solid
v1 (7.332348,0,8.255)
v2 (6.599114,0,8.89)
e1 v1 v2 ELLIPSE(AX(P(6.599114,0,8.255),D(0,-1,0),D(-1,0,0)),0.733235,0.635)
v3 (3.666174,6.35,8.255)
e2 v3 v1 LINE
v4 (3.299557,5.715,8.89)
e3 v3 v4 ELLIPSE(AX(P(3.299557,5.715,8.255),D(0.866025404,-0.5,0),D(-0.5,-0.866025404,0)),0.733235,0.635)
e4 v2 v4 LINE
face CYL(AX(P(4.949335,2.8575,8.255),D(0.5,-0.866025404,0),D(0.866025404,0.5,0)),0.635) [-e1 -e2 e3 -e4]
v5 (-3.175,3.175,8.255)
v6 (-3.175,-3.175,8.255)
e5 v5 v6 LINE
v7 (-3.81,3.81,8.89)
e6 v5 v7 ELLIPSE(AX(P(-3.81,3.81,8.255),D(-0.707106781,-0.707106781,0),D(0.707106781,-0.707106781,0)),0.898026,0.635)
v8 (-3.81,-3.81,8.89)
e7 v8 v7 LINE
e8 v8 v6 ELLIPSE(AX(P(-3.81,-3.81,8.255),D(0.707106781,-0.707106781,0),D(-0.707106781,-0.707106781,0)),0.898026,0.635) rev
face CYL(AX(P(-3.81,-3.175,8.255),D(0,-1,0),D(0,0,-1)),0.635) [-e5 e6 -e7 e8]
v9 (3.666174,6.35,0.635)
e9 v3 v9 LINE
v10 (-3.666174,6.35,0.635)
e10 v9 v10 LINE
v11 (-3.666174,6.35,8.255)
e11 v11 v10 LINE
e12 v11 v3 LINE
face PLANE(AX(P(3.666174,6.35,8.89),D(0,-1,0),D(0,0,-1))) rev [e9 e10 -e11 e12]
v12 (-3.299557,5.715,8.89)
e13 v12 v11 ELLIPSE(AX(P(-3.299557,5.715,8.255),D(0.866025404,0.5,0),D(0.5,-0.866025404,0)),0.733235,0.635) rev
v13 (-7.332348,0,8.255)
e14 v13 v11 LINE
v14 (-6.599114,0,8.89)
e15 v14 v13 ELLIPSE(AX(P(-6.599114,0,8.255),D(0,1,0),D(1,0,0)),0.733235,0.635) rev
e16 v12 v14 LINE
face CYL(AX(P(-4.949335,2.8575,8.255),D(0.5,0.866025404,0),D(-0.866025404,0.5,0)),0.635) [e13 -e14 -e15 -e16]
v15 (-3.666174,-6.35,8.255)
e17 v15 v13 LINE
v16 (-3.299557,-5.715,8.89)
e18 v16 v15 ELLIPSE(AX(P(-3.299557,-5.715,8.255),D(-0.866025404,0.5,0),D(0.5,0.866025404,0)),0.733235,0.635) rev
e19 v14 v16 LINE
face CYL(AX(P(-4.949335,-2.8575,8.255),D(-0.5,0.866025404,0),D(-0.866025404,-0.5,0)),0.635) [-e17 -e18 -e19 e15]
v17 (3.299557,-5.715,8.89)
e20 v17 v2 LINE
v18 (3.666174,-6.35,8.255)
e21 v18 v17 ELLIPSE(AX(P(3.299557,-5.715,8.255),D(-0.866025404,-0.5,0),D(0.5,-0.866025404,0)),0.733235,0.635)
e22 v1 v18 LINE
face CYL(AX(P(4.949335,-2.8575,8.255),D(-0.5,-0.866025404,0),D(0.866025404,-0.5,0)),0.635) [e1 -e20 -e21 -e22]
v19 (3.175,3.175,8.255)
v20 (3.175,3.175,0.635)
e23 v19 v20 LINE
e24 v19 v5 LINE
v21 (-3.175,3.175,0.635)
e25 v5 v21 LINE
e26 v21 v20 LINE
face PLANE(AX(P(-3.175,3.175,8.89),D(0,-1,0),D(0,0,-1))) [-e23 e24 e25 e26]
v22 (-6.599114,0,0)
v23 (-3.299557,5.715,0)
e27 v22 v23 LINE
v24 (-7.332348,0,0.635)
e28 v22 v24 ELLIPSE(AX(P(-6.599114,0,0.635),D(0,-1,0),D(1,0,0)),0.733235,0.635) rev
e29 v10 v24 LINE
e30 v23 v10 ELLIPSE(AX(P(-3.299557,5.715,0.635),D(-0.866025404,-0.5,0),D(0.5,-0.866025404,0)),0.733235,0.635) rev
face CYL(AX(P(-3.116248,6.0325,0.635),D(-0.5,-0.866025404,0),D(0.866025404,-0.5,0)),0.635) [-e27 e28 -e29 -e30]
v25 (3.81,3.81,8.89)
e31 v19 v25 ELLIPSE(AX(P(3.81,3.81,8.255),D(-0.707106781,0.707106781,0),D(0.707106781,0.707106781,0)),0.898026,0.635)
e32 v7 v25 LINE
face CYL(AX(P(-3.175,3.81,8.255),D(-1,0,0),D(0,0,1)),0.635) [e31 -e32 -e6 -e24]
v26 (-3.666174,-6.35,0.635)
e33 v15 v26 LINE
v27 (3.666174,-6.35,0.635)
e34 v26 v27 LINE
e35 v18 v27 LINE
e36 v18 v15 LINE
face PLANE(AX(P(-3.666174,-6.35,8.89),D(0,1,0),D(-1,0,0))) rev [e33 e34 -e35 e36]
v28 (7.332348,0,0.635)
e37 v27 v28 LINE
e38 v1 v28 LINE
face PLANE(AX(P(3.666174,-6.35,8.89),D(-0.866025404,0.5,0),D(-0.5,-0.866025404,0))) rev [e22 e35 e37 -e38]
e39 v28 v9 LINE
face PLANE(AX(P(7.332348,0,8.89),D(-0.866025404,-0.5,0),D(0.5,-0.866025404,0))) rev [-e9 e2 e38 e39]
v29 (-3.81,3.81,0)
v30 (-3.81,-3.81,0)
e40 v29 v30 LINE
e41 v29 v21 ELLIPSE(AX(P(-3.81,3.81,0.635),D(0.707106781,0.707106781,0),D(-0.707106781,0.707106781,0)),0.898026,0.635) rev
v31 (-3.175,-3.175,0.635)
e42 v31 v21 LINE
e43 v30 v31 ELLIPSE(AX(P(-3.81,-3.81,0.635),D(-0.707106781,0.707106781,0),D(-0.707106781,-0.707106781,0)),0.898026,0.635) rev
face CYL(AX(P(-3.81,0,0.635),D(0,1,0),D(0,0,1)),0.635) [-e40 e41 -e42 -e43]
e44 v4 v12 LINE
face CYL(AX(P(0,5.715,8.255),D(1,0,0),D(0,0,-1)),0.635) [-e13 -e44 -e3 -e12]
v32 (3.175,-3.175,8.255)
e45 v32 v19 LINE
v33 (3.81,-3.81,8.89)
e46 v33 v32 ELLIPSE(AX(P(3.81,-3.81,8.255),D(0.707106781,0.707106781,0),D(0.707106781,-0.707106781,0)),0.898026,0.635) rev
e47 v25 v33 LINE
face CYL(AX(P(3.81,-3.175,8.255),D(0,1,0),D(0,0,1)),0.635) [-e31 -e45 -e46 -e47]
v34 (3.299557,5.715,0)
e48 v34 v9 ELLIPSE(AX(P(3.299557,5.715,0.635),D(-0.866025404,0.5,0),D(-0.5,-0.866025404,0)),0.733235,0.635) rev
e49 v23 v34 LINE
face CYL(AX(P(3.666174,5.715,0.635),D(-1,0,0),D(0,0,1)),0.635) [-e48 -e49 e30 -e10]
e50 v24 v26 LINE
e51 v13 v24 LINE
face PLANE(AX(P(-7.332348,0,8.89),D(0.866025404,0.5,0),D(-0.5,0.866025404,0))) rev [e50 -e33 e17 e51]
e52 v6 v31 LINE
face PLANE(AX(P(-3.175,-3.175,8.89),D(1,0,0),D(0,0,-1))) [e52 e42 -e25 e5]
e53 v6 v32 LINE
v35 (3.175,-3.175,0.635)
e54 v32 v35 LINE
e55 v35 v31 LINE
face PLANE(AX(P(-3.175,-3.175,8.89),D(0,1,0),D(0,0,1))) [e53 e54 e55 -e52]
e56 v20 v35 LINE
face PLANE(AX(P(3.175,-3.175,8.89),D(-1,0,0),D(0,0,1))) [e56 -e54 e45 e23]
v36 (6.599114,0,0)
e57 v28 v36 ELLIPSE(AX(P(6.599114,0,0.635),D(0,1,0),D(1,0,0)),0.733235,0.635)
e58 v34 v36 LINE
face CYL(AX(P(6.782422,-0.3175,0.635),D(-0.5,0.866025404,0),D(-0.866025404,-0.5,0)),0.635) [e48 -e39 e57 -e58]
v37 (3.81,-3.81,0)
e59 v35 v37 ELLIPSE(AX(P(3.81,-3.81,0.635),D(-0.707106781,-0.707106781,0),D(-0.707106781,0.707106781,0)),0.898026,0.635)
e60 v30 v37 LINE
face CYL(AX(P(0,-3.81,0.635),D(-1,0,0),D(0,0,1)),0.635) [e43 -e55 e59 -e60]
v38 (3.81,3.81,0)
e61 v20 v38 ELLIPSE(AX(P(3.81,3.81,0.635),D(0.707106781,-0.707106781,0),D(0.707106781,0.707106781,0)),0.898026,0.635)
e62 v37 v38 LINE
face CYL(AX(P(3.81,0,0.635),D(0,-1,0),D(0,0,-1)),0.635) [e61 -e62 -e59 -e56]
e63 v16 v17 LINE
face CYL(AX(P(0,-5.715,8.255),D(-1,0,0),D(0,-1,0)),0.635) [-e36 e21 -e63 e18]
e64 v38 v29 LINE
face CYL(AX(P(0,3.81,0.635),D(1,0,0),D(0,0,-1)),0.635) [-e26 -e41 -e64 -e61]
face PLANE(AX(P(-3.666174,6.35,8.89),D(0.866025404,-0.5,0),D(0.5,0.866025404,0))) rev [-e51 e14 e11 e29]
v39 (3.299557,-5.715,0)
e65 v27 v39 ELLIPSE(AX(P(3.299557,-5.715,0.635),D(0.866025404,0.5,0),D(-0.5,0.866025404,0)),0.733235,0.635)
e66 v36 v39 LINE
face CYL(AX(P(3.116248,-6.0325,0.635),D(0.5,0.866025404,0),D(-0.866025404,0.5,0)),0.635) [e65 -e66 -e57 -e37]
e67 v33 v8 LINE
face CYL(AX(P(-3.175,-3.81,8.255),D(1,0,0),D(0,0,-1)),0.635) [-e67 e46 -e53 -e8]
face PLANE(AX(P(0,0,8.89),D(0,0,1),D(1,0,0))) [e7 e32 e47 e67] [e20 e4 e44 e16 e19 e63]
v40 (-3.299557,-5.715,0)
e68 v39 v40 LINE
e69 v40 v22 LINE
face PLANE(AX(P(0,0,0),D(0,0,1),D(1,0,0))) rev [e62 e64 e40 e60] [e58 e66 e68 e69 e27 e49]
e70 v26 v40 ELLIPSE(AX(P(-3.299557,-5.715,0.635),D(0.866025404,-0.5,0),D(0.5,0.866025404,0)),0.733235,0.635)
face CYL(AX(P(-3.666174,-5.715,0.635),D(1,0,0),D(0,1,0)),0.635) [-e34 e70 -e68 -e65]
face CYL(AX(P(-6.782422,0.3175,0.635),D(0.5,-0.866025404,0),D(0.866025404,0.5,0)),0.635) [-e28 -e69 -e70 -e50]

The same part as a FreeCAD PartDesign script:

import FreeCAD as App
import Part
import Sketcher

V = App.Vector
Q = App.Units.Quantity


def edges_at(feature, points):
    """Names of the edges that pass closest to the given points."""
    edges = feature.Shape.Edges
    near = lambda p: min(range(len(edges)), key=lambda i: edges[i].distToShape(Part.Vertex(*p))[0])
    return sorted({f"Edge{near(p) + 1}" for p in points})

doc = App.newDocument("Part")
body = doc.addObject("PartDesign::Body", "Body")

sketch1 = doc.addObject("Sketcher::SketchObject", "Sketch")
body.addObject(sketch1)
sketch1.AttachmentSupport = (doc.XY_Plane, [""])
sketch1.MapMode = "FlatFace"
sketch1.addGeometry(Part.LineSegment(V(7, 0, 0), V(4, 6, 0)), False)
sketch1.addGeometry(Part.LineSegment(V(4, 6, 0), V(-4, 6, 0)), False)
sketch1.addGeometry(Part.LineSegment(V(-4, 6, 0), V(-7, 0, 0)), False)
sketch1.addGeometry(Part.LineSegment(V(-7, 0, 0), V(-4, -6, 0)), False)
sketch1.addGeometry(Part.LineSegment(V(-4, -6, 0), V(4, -6, 0)), False)
sketch1.addGeometry(Part.LineSegment(V(4, -6, 0), V(7, 0, 0)), False)
sketch1.addGeometry(Part.LineSegment(V(3, -3, 0), V(-3, -3, 0)), False)
sketch1.addGeometry(Part.LineSegment(V(-3, -3, 0), V(-3, 3, 0)), False)
sketch1.addGeometry(Part.LineSegment(V(-3, 3, 0), V(3, 3, 0)), False)
sketch1.addGeometry(Part.LineSegment(V(3, 3, 0), V(3, -3, 0)), False)
sketch1.addConstraint(Sketcher.Constraint("Coincident", 0, 2, 1, 1))
sketch1.addConstraint(Sketcher.Constraint("Coincident", 1, 2, 2, 1))
sketch1.addConstraint(Sketcher.Constraint("Coincident", 2, 2, 3, 1))
sketch1.addConstraint(Sketcher.Constraint("Coincident", 3, 2, 4, 1))
sketch1.addConstraint(Sketcher.Constraint("Coincident", 4, 2, 5, 1))
sketch1.addConstraint(Sketcher.Constraint("Coincident", 5, 2, 0, 1))
sketch1.addConstraint(Sketcher.Constraint("Coincident", 6, 2, 7, 1))
sketch1.addConstraint(Sketcher.Constraint("Coincident", 7, 2, 8, 1))
sketch1.addConstraint(Sketcher.Constraint("Coincident", 8, 2, 9, 1))
sketch1.addConstraint(Sketcher.Constraint("Coincident", 9, 2, 6, 1))
sketch1.addConstraint(Sketcher.Constraint("Horizontal", 1))
sketch1.addConstraint(Sketcher.Constraint("Horizontal", 4))
sketch1.addConstraint(Sketcher.Constraint("Horizontal", 6))
sketch1.addConstraint(Sketcher.Constraint("Vertical", 7))
sketch1.addConstraint(Sketcher.Constraint("Horizontal", 8))
sketch1.addConstraint(Sketcher.Constraint("Vertical", 9))
sketch1.addConstraint(Sketcher.Constraint("Symmetric", 0, 2, 3, 2, -1, 1))
sketch1.addConstraint(Sketcher.Constraint("Symmetric", 2, 2, 5, 2, -1, 1))
sketch1.addConstraint(Sketcher.Constraint("Symmetric", 6, 2, 8, 2, -1, 1))
sketch1.addConstraint(Sketcher.Constraint("PointOnObject", 2, 2, -1))
sketch1.addConstraint(Sketcher.Constraint("Parallel", 2, 5))
sketch1.addConstraint(Sketcher.Constraint("Vertical", 1, 2, 3, 2))
sketch1.addConstraint(Sketcher.Constraint("Equal", 8, 7))
sketch1.addConstraint(Sketcher.Constraint("Angle", 0, Q("120 deg")))
sketch1.addConstraint(Sketcher.Constraint("DistanceX", 6, 2, 6, 1, Q("0.25 in")))
sketch1.addConstraint(Sketcher.Constraint("DistanceY", 3, 2, 1, 2, Q("0.5 in")))
sketch1.addConstraint(Sketcher.Constraint("DistanceX", 1, 2, 1, 1, 7.332348))
pad1 = doc.addObject("PartDesign::Pad", "Pad")
body.addObject(pad1)
pad1.Profile = sketch1
pad1.Length = Q("0.35 in")
doc.recompute()

fillet = doc.addObject("PartDesign::Fillet", "Fillet")
body.addObject(fillet)
fillet.Base = (pad1, edges_at(pad1, [
    (0, 6.35, 8.89),
    (-5.499, 3.175, 8.89),
    (3.175, 0, 0),
    (0, 3.175, 0),
    (-3.175, 0, 0),
    (-5.499, -3.175, 8.89),
    (0, -3.175, 0),
    (3.175, 0, 8.89),
    (0, 3.175, 8.89),
    (-3.175, 0, 8.89),
    (0, -3.175, 8.89),
    (0, -6.35, 8.89),
    (5.499, -3.175, 8.89),
    (0, -6.35, 0),
    (-5.499, -3.175, 0),
    (-5.499, 3.175, 0),
    (0, 6.35, 0),
    (5.499, 3.175, 0),
    (5.499, -3.175, 0),
    (5.499, 3.175, 8.89),
]))
fillet.Radius = Q("0.025 in")

doc.recompute()
